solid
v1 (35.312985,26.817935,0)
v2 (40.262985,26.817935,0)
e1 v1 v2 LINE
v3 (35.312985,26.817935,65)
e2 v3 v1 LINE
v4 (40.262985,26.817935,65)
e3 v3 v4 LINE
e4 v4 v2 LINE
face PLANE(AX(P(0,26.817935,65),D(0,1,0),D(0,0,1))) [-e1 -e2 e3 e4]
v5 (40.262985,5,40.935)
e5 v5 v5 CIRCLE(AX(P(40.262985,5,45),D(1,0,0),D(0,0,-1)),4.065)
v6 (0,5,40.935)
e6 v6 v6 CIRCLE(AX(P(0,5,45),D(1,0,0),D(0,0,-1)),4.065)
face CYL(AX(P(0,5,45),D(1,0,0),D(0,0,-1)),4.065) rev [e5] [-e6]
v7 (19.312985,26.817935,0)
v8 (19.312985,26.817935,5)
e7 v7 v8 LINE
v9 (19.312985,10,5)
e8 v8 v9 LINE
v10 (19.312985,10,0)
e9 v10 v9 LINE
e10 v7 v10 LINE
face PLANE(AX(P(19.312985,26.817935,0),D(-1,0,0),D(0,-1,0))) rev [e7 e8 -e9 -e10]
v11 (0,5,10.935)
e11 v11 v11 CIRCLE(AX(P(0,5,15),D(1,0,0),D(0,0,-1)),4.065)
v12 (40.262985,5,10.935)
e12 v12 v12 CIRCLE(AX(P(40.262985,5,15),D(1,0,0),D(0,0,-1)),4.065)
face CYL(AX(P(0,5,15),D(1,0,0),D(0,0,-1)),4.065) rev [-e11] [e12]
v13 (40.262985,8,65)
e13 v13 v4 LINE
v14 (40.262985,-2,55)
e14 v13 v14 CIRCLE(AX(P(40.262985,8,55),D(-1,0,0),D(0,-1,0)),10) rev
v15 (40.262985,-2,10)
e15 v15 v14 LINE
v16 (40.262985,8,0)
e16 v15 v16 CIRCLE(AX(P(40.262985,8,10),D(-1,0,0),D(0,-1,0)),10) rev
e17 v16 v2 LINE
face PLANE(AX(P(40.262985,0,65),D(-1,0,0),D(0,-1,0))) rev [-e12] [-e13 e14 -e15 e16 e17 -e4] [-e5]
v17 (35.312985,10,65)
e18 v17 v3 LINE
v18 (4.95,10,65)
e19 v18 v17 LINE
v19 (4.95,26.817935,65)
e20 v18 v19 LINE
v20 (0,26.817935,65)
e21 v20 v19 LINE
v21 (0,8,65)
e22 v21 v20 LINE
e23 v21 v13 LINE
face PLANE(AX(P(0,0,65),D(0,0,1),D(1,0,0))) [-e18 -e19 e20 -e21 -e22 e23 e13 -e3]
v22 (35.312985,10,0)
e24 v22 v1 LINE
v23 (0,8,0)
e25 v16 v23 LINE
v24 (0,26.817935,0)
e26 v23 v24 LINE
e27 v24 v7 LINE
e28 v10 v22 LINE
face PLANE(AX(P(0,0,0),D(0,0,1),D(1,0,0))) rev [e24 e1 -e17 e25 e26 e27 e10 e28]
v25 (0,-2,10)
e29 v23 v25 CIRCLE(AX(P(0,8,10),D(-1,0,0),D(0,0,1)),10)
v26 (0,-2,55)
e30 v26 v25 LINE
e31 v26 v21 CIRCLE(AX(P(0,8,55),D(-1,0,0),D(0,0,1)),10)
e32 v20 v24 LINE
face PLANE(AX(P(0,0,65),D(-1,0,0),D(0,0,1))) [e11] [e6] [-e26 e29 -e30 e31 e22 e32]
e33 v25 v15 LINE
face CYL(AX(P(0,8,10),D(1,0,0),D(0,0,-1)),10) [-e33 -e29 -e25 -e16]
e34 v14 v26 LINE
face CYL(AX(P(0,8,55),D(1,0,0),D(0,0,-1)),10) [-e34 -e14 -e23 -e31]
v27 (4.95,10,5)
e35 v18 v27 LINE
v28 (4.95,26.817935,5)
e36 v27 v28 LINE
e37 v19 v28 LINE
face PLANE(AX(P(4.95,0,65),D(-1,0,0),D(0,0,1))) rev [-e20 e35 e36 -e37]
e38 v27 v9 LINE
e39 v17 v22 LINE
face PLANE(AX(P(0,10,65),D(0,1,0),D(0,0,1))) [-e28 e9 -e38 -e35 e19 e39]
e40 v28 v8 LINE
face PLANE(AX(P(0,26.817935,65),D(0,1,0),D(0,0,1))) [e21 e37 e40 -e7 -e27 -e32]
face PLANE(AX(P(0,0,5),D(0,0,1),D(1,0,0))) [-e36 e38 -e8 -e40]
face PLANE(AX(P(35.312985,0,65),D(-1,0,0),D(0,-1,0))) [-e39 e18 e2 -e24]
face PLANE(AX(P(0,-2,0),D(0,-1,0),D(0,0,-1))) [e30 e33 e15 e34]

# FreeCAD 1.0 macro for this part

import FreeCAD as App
import Part
import Sketcher


def edges_at(feature, points):
    """Names of the edges that pass closest to the given points."""
    edges = feature.Shape.Edges
    near = lambda p: min(range(len(edges)), key=lambda i: edges[i].distToShape(Part.Vertex(*p))[0])
    return sorted({f"Edge{near(p) + 1}" for p in points})


def faces_at(feature, points):
    """Names of the faces that lie closest to the given points."""
    faces = feature.Shape.Faces
    near = lambda p: min(range(len(faces)), key=lambda i: faces[i].distToShape(Part.Vertex(*p))[0])
    return sorted({f"Face{near(p) + 1}" for p in points})

doc = App.newDocument("Part")
body = doc.addObject("PartDesign::Body", "Body")

sketch1 = body.newObject("Sketcher::SketchObject", "Sketch")
sketch1.AttachmentSupport = (doc.getObject("XY_Plane"), [""])
sketch1.MapMode = "FlatFace"
sketch1.addGeometry([
    Part.LineSegment(App.Vector(0, 27, 0), App.Vector(0, 0, 0)),
    Part.LineSegment(App.Vector(0, 0, 0), App.Vector(40, 0, 0)),
    Part.LineSegment(App.Vector(40, 0, 0), App.Vector(40, 27, 0)),
    Part.LineSegment(App.Vector(40, 27, 0), App.Vector(0, 27, 0)),
], False)
sketch1.addConstraint([
    Sketcher.Constraint("Coincident", 0, 2, 1, 1),
    Sketcher.Constraint("Coincident", 1, 2, 2, 1),
    Sketcher.Constraint("Coincident", 2, 2, 3, 1),
    Sketcher.Constraint("Coincident", 3, 2, 0, 1),
    Sketcher.Constraint("Vertical", 0),
    Sketcher.Constraint("Horizontal", 1),
    Sketcher.Constraint("Vertical", 2),
    Sketcher.Constraint("Horizontal", 3),
    Sketcher.Constraint("Coincident", 0, 2, -1, 1),
    Sketcher.Constraint("DistanceX", 1, 1, 1, 2, 40.262985),
    Sketcher.Constraint("DistanceY", 0, 2, 0, 1, 26.817935),
])
pad1 = body.newObject("PartDesign::Pad", "Pad")
pad1.Profile = sketch1
pad1.Length = 65
doc.recompute()

thickness = body.newObject("PartDesign::Thickness", "Thickness")
thickness.Base = (pad1, faces_at(pad1, [(20.131, 13.409, 65), (20.131, 26.818, 32.5)]))
thickness.Value = 1.5
thickness.Reversed = True
thickness.Join = "Intersection"

sketch2 = body.newObject("Sketcher::SketchObject", "Sketch001")
sketch2.AttachmentSupport = (doc.getObject("YZ_Plane"), [""])
sketch2.MapMode = "FlatFace"
sketch2.AttachmentOffset = App.Placement(App.Vector(0, 0, 1.5), App.Rotation())
sketch2.addGeometry([
    Part.LineSegment(App.Vector(2, 65, 0), App.Vector(27, 65, 0)),
    Part.LineSegment(App.Vector(27, 65, 0), App.Vector(27, 2, 0)),
    Part.LineSegment(App.Vector(27, 2, 0), App.Vector(2, 2, 0)),
    Part.LineSegment(App.Vector(2, 2, 0), App.Vector(2, 65, 0)),
], False)
sketch2.addConstraint([
    Sketcher.Constraint("Coincident", 0, 2, 1, 1),
    Sketcher.Constraint("Coincident", 1, 2, 2, 1),
    Sketcher.Constraint("Coincident", 2, 2, 3, 1),
    Sketcher.Constraint("Coincident", 3, 2, 0, 1),
    Sketcher.Constraint("Horizontal", 0),
    Sketcher.Constraint("Vertical", 1),
    Sketcher.Constraint("Horizontal", 2),
    Sketcher.Constraint("Vertical", 3),
    Sketcher.Constraint("DistanceY", 1, 2, 1, 1, 63.5),
    Sketcher.Constraint("DistanceY", -1, 1, 0, 2, 65.0),
    Sketcher.Constraint("DistanceX", -1, 1, 2, 2, 1.5),
    Sketcher.Constraint("DistanceX", 0, 1, 0, 2, 25.317935),
])
pad2 = body.newObject("PartDesign::Pad", "Pad001")
pad2.Profile = sketch2
pad2.Length = 3.45

sketch3 = body.newObject("Sketcher::SketchObject", "Sketch002")
sketch3.AttachmentSupport = (doc.getObject("YZ_Plane"), [""])
sketch3.MapMode = "FlatFace"
sketch3.AttachmentOffset = App.Placement(App.Vector(0, 0, 38.762985), App.Rotation())
sketch3.addGeometry([
    Part.LineSegment(App.Vector(2, 65, 0), App.Vector(2, 2, 0)),
    Part.LineSegment(App.Vector(2, 2, 0), App.Vector(27, 2, 0)),
    Part.LineSegment(App.Vector(27, 2, 0), App.Vector(27, 65, 0)),
    Part.LineSegment(App.Vector(27, 65, 0), App.Vector(2, 65, 0)),
], False)
sketch3.addConstraint([
    Sketcher.Constraint("Coincident", 0, 2, 1, 1),
    Sketcher.Constraint("Coincident", 1, 2, 2, 1),
    Sketcher.Constraint("Coincident", 2, 2, 3, 1),
    Sketcher.Constraint("Coincident", 3, 2, 0, 1),
    Sketcher.Constraint("Vertical", 0),
    Sketcher.Constraint("Horizontal", 1),
    Sketcher.Constraint("Vertical", 2),
    Sketcher.Constraint("Horizontal", 3),
    Sketcher.Constraint("DistanceY", 0, 2, 0, 1, 63.5),
    Sketcher.Constraint("DistanceY", -1, 1, 2, 2, 65.0),
    Sketcher.Constraint("DistanceX", -1, 1, 0, 2, 1.5),
    Sketcher.Constraint("DistanceX", 1, 1, 1, 2, 25.317935),
])
pad3 = body.newObject("PartDesign::Pad", "Pad002")
pad3.Profile = sketch3
pad3.Length = 3.45
pad3.Reversed = True

sketch4 = body.newObject("Sketcher::SketchObject", "Sketch003")
sketch4.AttachmentSupport = (doc.getObject("XZ_Plane"), [""])
sketch4.MapMode = "FlatFace"
sketch4.AttachmentOffset = App.Placement(App.Vector(0, 0, -1.5), App.Rotation())
sketch4.addGeometry([
    Part.LineSegment(App.Vector(35, 65, 0), App.Vector(5, 65, 0)),
    Part.LineSegment(App.Vector(5, 65, 0), App.Vector(5, 2, 0)),
    Part.LineSegment(App.Vector(5, 2, 0), App.Vector(35, 2, 0)),
    Part.LineSegment(App.Vector(35, 2, 0), App.Vector(35, 65, 0)),
], False)
sketch4.addConstraint([
    Sketcher.Constraint("Coincident", 0, 2, 1, 1),
    Sketcher.Constraint("Coincident", 1, 2, 2, 1),
    Sketcher.Constraint("Coincident", 2, 2, 3, 1),
    Sketcher.Constraint("Coincident", 3, 2, 0, 1),
    Sketcher.Constraint("Horizontal", 0),
    Sketcher.Constraint("Vertical", 1),
    Sketcher.Constraint("Horizontal", 2),
    Sketcher.Constraint("Vertical", 3),
    Sketcher.Constraint("DistanceY", 1, 2, 1, 1, 63.5),
    Sketcher.Constraint("DistanceY", -1, 1, 0, 2, 65.0),
    Sketcher.Constraint("DistanceX", -1, 1, 0, 2, 4.95),
    Sketcher.Constraint("DistanceX", 0, 2, 0, 1, 30.362985),
])
pad4 = body.newObject("PartDesign::Pad", "Pad003")
pad4.Profile = sketch4
pad4.Length = 8.5
pad4.Reversed = True

sketch5 = body.newObject("Sketcher::SketchObject", "Sketch004")
sketch5.AttachmentSupport = (doc.getObject("XY_Plane"), [""])
sketch5.MapMode = "FlatFace"
sketch5.AttachmentOffset = App.Placement(App.Vector(0, 0, 1.5), App.Rotation())
sketch5.addGeometry([
    Part.LineSegment(App.Vector(35, 27, 0), App.Vector(35, 10, 0)),
    Part.LineSegment(App.Vector(35, 10, 0), App.Vector(5, 10, 0)),
    Part.LineSegment(App.Vector(5, 10, 0), App.Vector(5, 27, 0)),
    Part.LineSegment(App.Vector(5, 27, 0), App.Vector(35, 27, 0)),
], False)
sketch5.addConstraint([
    Sketcher.Constraint("Coincident", 0, 2, 1, 1),
    Sketcher.Constraint("Coincident", 1, 2, 2, 1),
    Sketcher.Constraint("Coincident", 2, 2, 3, 1),
    Sketcher.Constraint("Coincident", 3, 2, 0, 1),
    Sketcher.Constraint("Vertical", 0),
    Sketcher.Constraint("Horizontal", 1),
    Sketcher.Constraint("Vertical", 2),
    Sketcher.Constraint("Horizontal", 3),
    Sketcher.Constraint("DistanceY", -1, 1, 0, 2, 10.0),
    Sketcher.Constraint("DistanceX", -1, 1, 1, 2, 4.95),
    Sketcher.Constraint("DistanceX", 1, 2, 1, 1, 30.362985),
    Sketcher.Constraint("DistanceY", 0, 2, 0, 1, 16.817935),
])
pad5 = body.newObject("PartDesign::Pad", "Pad004")
pad5.Profile = sketch5
pad5.Length = 3.5

sketch6 = body.newObject("Sketcher::SketchObject", "Sketch005")
sketch6.AttachmentSupport = (doc.getObject("XZ_Plane"), [""])
sketch6.MapMode = "FlatFace"
sketch6.addGeometry([
    Part.LineSegment(App.Vector(0, 65, 0), App.Vector(0, 0, 0)),
    Part.LineSegment(App.Vector(0, 0, 0), App.Vector(40, 0, 0)),
    Part.LineSegment(App.Vector(40, 0, 0), App.Vector(40, 65, 0)),
    Part.LineSegment(App.Vector(40, 65, 0), App.Vector(0, 65, 0)),
], False)
sketch6.addConstraint([
    Sketcher.Constraint("Coincident", 0, 2, 1, 1),
    Sketcher.Constraint("Coincident", 1, 2, 2, 1),
    Sketcher.Constraint("Coincident", 2, 2, 3, 1),
    Sketcher.Constraint("Coincident", 3, 2, 0, 1),
    Sketcher.Constraint("Vertical", 0),
    Sketcher.Constraint("Horizontal", 1),
    Sketcher.Constraint("Vertical", 2),
    Sketcher.Constraint("Horizontal", 3),
    Sketcher.Constraint("Coincident", 0, 2, -1, 1),
    Sketcher.Constraint("DistanceY", 0, 2, 0, 1, 65.0),
    Sketcher.Constraint("DistanceX", 1, 1, 1, 2, 40.262985),
])
pad6 = body.newObject("PartDesign::Pad", "Pad005")
pad6.Profile = sketch6
pad6.Length = 2

sketch7 = body.newObject("Sketcher::SketchObject", "Sketch006")
sketch7.AttachmentSupport = (doc.getObject("YZ_Plane"), [""])
sketch7.MapMode = "FlatFace"
sketch7.AttachmentOffset = App.Placement(App.Vector(0, 0, 40.262985), App.Rotation())
sketch7.addGeometry([
    Part.Circle(App.Vector(5, 15, 0), App.Vector(0, 0, 1), 4.1),
    Part.Circle(App.Vector(5, 45, 0), App.Vector(0, 0, 1), 4.1),
], False)
sketch7.addConstraint([
    Sketcher.Constraint("Equal", 0, 1),
    Sketcher.Constraint("Vertical", 0, 3, 1, 3),
    Sketcher.Constraint("Diameter", 0, 8.13),
    Sketcher.Constraint("DistanceX", -1, 1, 0, 3, 5.0),
    Sketcher.Constraint("DistanceY", -1, 1, 0, 3, 15.0),
    Sketcher.Constraint("DistanceY", -1, 1, 1, 3, 45.0),
])
pocket1 = body.newObject("PartDesign::Pocket", "Pocket")
pocket1.Profile = sketch7
pocket1.Type = "ThroughAll"
doc.recompute()

fillet = body.newObject("PartDesign::Fillet", "Fillet")
fillet.Base = (pocket1, edges_at(pocket1, [(20.131, -2, 0)]))
fillet.Radius = 10
doc.recompute()

fillet2 = body.newObject("PartDesign::Fillet", "Fillet001")
fillet2.Base = (fillet, edges_at(fillet, [(20.131, -2, 65)]))
fillet2.Radius = 10

sketch8 = body.newObject("Sketcher::SketchObject", "Sketch007")
sketch8.AttachmentSupport = (doc.getObject("XY_Plane"), [""])
sketch8.MapMode = "FlatFace"
sketch8.AttachmentOffset = App.Placement(App.Vector(0, 0, 5), App.Rotation())
sketch8.addGeometry([
    Part.LineSegment(App.Vector(19, 27, 0), App.Vector(19, 10, 0)),
    Part.LineSegment(App.Vector(19, 10, 0), App.Vector(35, 10, 0)),
    Part.LineSegment(App.Vector(35, 10, 0), App.Vector(35, 27, 0)),
    Part.LineSegment(App.Vector(35, 27, 0), App.Vector(19, 27, 0)),
], False)
sketch8.addConstraint([
    Sketcher.Constraint("Coincident", 0, 2, 1, 1),
    Sketcher.Constraint("Coincident", 1, 2, 2, 1),
    Sketcher.Constraint("Coincident", 2, 2, 3, 1),
    Sketcher.Constraint("Coincident", 3, 2, 0, 1),
    Sketcher.Constraint("Vertical", 0),
    Sketcher.Constraint("Horizontal", 1),
    Sketcher.Constraint("Vertical", 2),
    Sketcher.Constraint("Horizontal", 3),
    Sketcher.Constraint("DistanceX", 1, 1, 1, 2, 16.0),
    Sketcher.Constraint("DistanceY", -1, 1, 0, 2, 10.0),
    Sketcher.Constraint("DistanceY", 0, 2, 0, 1, 16.817935),
    Sketcher.Constraint("DistanceX", -1, 1, 0, 2, 19.312985),
])
pocket2 = body.newObject("PartDesign::Pocket", "Pocket001")
pocket2.Profile = sketch8
pocket2.Type = "ThroughAll"

doc.recompute()
